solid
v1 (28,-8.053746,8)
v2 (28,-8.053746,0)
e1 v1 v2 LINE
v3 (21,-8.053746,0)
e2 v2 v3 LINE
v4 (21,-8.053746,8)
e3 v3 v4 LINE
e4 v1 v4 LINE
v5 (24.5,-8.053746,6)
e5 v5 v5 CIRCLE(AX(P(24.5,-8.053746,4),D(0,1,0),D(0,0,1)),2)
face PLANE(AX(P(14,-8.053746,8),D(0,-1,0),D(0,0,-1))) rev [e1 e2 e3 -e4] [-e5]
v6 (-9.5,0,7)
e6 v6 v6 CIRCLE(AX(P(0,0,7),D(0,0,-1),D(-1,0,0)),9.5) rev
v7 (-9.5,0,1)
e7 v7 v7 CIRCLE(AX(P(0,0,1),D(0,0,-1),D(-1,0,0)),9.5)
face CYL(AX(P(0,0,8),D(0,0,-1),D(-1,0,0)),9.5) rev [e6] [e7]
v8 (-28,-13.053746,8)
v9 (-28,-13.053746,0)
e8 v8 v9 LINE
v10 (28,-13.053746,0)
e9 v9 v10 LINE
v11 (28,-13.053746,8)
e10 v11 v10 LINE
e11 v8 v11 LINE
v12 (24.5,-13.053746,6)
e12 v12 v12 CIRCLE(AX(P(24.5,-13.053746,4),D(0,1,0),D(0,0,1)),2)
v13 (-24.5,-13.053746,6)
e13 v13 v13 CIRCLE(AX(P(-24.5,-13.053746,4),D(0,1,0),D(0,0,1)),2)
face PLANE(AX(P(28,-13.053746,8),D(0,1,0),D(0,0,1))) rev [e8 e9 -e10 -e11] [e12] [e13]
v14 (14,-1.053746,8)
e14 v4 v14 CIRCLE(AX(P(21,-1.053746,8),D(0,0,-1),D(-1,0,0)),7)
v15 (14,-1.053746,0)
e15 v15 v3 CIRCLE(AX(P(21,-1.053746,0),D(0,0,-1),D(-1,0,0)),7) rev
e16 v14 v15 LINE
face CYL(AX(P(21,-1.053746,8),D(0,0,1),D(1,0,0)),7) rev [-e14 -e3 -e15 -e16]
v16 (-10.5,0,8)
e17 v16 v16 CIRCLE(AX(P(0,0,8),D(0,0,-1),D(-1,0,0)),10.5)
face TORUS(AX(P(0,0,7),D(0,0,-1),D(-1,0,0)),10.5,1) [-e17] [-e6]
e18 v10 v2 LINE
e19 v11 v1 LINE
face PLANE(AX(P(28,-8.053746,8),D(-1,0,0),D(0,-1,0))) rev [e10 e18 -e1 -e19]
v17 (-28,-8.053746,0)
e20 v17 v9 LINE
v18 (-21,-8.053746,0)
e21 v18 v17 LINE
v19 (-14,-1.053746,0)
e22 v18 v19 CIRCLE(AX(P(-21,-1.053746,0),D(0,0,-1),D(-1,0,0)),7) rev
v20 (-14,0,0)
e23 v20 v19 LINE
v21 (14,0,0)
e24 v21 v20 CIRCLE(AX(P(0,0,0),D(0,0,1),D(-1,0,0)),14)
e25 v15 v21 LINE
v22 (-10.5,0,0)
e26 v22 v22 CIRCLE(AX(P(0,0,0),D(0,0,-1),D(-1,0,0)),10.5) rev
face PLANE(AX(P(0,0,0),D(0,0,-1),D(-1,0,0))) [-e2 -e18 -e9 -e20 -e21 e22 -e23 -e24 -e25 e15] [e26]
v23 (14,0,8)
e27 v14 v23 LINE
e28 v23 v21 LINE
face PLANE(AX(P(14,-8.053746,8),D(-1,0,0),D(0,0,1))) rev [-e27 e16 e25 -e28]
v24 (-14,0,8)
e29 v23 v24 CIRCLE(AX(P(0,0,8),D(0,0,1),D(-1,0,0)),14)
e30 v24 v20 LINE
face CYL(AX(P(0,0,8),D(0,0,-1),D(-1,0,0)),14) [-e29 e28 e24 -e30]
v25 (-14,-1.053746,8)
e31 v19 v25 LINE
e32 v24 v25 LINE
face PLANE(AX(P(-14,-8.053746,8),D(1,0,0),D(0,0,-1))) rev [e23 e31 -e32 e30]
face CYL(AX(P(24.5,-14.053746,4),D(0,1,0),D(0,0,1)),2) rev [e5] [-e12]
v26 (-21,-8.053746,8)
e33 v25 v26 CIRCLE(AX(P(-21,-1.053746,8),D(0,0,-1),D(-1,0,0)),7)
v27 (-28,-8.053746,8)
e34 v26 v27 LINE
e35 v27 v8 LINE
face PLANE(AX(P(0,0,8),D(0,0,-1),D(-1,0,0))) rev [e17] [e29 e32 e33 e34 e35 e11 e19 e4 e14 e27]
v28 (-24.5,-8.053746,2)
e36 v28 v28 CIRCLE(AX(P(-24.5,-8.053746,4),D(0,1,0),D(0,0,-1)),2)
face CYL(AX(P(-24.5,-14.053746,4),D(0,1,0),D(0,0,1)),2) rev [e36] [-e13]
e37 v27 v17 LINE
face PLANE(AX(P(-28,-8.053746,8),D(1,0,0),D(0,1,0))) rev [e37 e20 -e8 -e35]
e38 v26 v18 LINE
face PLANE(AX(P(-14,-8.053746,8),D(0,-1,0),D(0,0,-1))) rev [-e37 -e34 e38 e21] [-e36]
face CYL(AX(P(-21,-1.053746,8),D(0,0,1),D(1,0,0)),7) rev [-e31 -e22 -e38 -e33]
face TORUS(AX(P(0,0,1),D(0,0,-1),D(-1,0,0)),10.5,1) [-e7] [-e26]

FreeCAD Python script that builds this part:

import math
import FreeCAD as App
import Part
import Sketcher
Q = App.Units.Quantity


def edges_at(feature, points):
    """Names of the edges that pass closest to the given points."""
    edges = feature.Shape.Edges
    near = lambda p: min(range(len(edges)), key=lambda i: edges[i].distToShape(Part.Vertex(*p))[0])
    return sorted({f"Edge{near(p) + 1}" for p in points})

doc = App.newDocument("Part")
body = doc.addObject("PartDesign::Body", "Body")

sketch1 = body.newObject("Sketcher::SketchObject", "Sketch")
sketch1.AttachmentSupport = (doc.getObject("XY_Plane"), [""])
sketch1.MapMode = "FlatFace"
sketch1.addGeometry([
    Part.LineSegment(App.Vector(28, -8, 0), App.Vector(14, -8, 0)),
    Part.LineSegment(App.Vector(14, -8, 0), App.Vector(14, 0, 0)),
    Part.ArcOfCircle(Part.Circle(App.Vector(0, 0, 0), App.Vector(0, 0, 1), 14), math.radians(0), math.radians(180)),
    Part.LineSegment(App.Vector(-14, 0, 0), App.Vector(-14, -8, 0)),
    Part.LineSegment(App.Vector(-14, -8, 0), App.Vector(-28, -8, 0)),
    Part.LineSegment(App.Vector(-28, -8, 0), App.Vector(-28, -13, 0)),
    Part.LineSegment(App.Vector(-28, -13, 0), App.Vector(28, -13, 0)),
    Part.LineSegment(App.Vector(28, -13, 0), App.Vector(28, -8, 0)),
    Part.Circle(App.Vector(0, 0, 0), App.Vector(0, 0, 1), 10),
], False)
sketch1.addConstraint([
    Sketcher.Constraint("Coincident", 0, 2, 1, 1),
    Sketcher.Constraint("Tangent", 1, 2, 2, 1),
    Sketcher.Constraint("Tangent", 2, 2, 3, 1),
    Sketcher.Constraint("Coincident", 3, 2, 4, 1),
    Sketcher.Constraint("Coincident", 4, 2, 5, 1),
    Sketcher.Constraint("Coincident", 5, 2, 6, 1),
    Sketcher.Constraint("Coincident", 6, 2, 7, 1),
    Sketcher.Constraint("Coincident", 7, 2, 0, 1),
    Sketcher.Constraint("Horizontal", 0),
    Sketcher.Constraint("Vertical", 1),
    Sketcher.Constraint("Vertical", 3),
    Sketcher.Constraint("Horizontal", 4),
    Sketcher.Constraint("Vertical", 5),
    Sketcher.Constraint("Horizontal", 6),
    Sketcher.Constraint("Vertical", 7),
    Sketcher.Constraint("Coincident", 2, 3, -1, 1),
    Sketcher.Constraint("Coincident", 8, 3, -1, 1),
    Sketcher.Constraint("Symmetric", 4, 2, 7, 2, -2),
    Sketcher.Constraint("Diameter", 8, Q("19 mm")),
    Sketcher.Constraint("Radius", 2, Q("14 mm")),
    Sketcher.Constraint("DistanceX", 0, 2, 0, 1, Q("14 mm")),
    Sketcher.Constraint("DistanceY", 5, 2, 5, 1, Q("5 mm")),
    Sketcher.Constraint("DistanceY", 1, 1, 1, 2, Q("8.053746 mm")),
])
pad1 = body.newObject("PartDesign::Pad", "Pad")
pad1.Profile = sketch1
pad1.Length = 8
doc.recompute()

fillet = body.newObject("PartDesign::Fillet", "Fillet")
fillet.Base = (pad1, edges_at(pad1, [(-9.5, 0, 8)]))
fillet.Radius = 1
doc.recompute()

fillet2 = body.newObject("PartDesign::Fillet", "Fillet001")
fillet2.Base = (fillet, edges_at(fillet, [(-9.5, 0, 0)]))
fillet2.Radius = 1
doc.recompute()

fillet3 = body.newObject("PartDesign::Fillet", "Fillet002")
fillet3.Base = (fillet2, edges_at(fillet2, [(-14, -8.054, 4), (14, -8.054, 4)]))
fillet3.Radius = 7

sketch2 = body.newObject("Sketcher::SketchObject", "Sketch001")
sketch2.AttachmentSupport = (doc.getObject("XZ_Plane"), [""])
sketch2.MapMode = "FlatFace"
sketch2.AttachmentOffset = App.Placement(App.Vector(0, 0, 8.053746), App.Rotation())
sketch2.addGeometry([
    Part.Circle(App.Vector(24.5, 4, 0), App.Vector(0, 0, 1), 2),
    Part.Circle(App.Vector(-24.5, 4, 0), App.Vector(0, 0, 1), 2),
], False)
sketch2.addConstraint([
    Sketcher.Constraint("Equal", 0, 1),
    Sketcher.Constraint("Symmetric", 0, 3, 1, 3, -2),
    Sketcher.Constraint("Diameter", 0, Q("4 mm")),
    Sketcher.Constraint("DistanceY", -1, 1, 0, 3, Q("4 mm")),
    Sketcher.Constraint("DistanceX", 1, 3, 0, 3, Q("49 mm")),
])
pocket1 = body.newObject("PartDesign::Pocket", "Pocket")
pocket1.Profile = sketch2
pocket1.Length = 6
pocket1.Reversed = True

doc.recompute()
